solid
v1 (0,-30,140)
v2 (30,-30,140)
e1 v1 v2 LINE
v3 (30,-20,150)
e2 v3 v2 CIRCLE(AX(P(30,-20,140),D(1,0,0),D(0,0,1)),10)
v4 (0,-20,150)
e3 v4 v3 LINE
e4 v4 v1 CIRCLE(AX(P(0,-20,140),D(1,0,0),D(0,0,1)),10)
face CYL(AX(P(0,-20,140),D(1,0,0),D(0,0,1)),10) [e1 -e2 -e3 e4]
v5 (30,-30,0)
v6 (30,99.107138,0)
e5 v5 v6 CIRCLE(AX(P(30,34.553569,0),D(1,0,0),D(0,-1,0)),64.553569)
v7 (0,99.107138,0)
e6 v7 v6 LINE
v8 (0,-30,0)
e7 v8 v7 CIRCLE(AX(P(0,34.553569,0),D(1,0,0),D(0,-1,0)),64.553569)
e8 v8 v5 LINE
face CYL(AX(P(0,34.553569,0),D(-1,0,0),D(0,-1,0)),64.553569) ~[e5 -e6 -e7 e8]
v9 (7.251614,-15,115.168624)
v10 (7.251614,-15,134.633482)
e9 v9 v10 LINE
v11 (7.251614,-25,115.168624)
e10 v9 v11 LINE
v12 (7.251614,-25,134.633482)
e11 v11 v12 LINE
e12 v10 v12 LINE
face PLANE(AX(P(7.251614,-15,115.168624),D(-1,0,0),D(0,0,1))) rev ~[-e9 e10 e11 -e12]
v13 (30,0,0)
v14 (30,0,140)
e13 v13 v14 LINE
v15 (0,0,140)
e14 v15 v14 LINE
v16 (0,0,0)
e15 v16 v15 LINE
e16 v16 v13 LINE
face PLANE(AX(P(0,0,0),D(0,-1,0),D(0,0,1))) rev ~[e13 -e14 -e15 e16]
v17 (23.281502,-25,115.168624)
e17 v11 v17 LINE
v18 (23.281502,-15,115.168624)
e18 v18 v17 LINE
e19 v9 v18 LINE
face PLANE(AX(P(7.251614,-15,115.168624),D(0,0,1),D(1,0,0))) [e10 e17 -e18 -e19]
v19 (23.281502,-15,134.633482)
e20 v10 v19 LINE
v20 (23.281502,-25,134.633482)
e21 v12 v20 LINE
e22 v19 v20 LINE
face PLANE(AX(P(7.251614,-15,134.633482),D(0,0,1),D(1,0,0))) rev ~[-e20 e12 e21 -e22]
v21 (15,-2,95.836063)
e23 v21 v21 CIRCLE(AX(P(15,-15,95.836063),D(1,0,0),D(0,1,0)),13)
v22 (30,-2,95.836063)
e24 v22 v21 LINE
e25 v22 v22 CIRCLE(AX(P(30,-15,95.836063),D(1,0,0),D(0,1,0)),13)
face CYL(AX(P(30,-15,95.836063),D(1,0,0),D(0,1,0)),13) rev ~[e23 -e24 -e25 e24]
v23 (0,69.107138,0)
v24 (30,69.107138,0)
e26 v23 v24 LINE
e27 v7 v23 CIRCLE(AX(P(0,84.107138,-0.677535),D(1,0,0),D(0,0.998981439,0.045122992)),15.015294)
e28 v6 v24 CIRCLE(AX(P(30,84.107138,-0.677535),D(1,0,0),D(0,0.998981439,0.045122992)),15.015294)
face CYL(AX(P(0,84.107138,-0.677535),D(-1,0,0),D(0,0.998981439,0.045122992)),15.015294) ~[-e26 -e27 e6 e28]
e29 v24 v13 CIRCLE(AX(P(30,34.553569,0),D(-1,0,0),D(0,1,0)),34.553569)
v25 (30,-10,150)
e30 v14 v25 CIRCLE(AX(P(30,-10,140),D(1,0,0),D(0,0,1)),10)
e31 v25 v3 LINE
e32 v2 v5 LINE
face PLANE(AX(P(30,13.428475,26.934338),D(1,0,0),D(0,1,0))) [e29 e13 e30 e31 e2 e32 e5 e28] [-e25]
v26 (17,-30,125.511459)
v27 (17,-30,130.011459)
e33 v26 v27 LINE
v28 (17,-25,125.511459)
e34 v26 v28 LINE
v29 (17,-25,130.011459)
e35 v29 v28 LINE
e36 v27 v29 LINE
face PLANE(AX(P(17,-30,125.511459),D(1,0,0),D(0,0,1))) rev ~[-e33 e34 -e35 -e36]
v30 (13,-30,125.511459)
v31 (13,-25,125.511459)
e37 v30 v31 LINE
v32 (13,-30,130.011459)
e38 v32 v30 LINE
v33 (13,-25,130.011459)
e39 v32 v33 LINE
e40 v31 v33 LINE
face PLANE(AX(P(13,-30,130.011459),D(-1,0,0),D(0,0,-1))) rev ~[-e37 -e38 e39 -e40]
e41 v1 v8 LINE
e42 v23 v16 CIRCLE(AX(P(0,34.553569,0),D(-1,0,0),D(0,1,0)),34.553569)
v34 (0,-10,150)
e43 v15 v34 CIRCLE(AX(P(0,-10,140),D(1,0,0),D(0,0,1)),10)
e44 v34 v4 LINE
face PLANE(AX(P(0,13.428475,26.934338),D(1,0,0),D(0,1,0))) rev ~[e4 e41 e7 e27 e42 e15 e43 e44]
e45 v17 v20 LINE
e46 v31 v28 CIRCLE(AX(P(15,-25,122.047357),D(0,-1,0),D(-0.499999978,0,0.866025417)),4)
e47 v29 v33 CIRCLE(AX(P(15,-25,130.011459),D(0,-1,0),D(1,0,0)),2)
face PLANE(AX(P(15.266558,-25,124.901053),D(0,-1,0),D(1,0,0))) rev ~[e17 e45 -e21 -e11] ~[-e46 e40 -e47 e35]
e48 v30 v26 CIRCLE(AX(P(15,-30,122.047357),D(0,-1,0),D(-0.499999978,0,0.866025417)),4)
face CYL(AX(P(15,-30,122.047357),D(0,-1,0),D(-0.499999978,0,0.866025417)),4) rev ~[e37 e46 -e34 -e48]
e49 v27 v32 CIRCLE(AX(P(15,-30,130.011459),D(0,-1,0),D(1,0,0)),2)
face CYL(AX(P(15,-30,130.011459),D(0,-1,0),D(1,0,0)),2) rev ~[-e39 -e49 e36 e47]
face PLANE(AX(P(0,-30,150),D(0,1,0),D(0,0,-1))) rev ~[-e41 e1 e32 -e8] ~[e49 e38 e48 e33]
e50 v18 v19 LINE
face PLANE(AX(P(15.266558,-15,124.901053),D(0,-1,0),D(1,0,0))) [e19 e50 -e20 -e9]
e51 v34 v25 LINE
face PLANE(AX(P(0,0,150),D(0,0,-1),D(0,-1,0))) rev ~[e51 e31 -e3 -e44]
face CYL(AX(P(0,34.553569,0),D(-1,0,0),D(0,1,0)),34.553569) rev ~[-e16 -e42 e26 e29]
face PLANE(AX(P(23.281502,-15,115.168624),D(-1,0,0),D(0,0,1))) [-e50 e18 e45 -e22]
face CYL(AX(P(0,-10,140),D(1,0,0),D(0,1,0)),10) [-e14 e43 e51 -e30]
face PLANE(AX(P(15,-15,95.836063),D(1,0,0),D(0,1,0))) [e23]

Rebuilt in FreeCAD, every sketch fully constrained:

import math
import FreeCAD as App
import Part
import Sketcher
from FreeCAD import Vector
Q = App.Units.Quantity


def edges_at(feature, points):
    """Names of the edges that pass closest to the given points."""
    edges = feature.Shape.Edges
    near = lambda p: min(range(len(edges)), key=lambda i: edges[i].distToShape(Part.Vertex(*p))[0])
    return sorted({f"Edge{near(p) + 1}" for p in points})

doc = App.newDocument("Part")
body = doc.addObject("PartDesign::Body", "Body")

sketch1 = body.newObject("Sketcher::SketchObject", "Sketch")
sketch1.AttachmentSupport = (doc.getObject("YZ_Plane"), [""])
sketch1.MapMode = "FlatFace"
sketch1.addGeometry([
    Part.ArcOfCircle(Part.Circle(Vector(35, 0, 0), Vector(0, 0, 1), 35), math.radians(180), math.radians(360)),
    Part.LineSegment(Vector(0, 0, 0), Vector(0, 150, 0)),
    Part.LineSegment(Vector(0, 150, 0), Vector(-30, 150, 0)),
    Part.LineSegment(Vector(-30, 150, 0), Vector(-30, 0, 0)),
    Part.ArcOfCircle(Part.Circle(Vector(35, 0, 0), Vector(0, 0, 1), 65), math.radians(180), math.radians(360)),
    Part.ArcOfCircle(Part.Circle(Vector(84, -1, 0), Vector(0, 0, 1), 15), math.radians(3), math.radians(177)),
], False)
sketch1.addConstraint([
    Sketcher.Constraint("Tangent", 0, 1, 1, 1),
    Sketcher.Constraint("Coincident", 1, 2, 2, 1),
    Sketcher.Constraint("Coincident", 2, 2, 3, 1),
    Sketcher.Constraint("Tangent", 3, 2, 4, 1),
    Sketcher.Constraint("Coincident", 4, 2, 5, 1),
    Sketcher.Constraint("Coincident", 5, 2, 0, 2),
    Sketcher.Constraint("Vertical", 1),
    Sketcher.Constraint("Horizontal", 2),
    Sketcher.Constraint("Vertical", 3),
    Sketcher.Constraint("Coincident", 0, 1, -1, 1),
    Sketcher.Constraint("Coincident", 4, 3, 0, 3),
    Sketcher.Constraint("PointOnObject", 4, 2, -1),
    Sketcher.Constraint("PointOnObject", 5, 2, -1),
    Sketcher.Constraint("DistanceX", 2, 2, 2, 1, Q("30 mm")),
    Sketcher.Constraint("DistanceY", 1, 1, 1, 2, Q("150 mm")),
    Sketcher.Constraint("Radius", 0, Q("34.553569 mm")),
    Sketcher.Constraint("Radius", 5, Q("15.015294 mm")),
])
pad1 = body.newObject("PartDesign::Pad", "Pad")
pad1.Profile = sketch1
pad1.Length = 30

sketch2 = body.newObject("Sketcher::SketchObject", "Sketch001")
sketch2.AttachmentSupport = (doc.getObject("YZ_Plane"), [""])
sketch2.MapMode = "FlatFace"
sketch2.AttachmentOffset = App.Placement(Vector(0, 0, 30), App.Rotation())
sketch2.addGeometry(Part.Circle(Vector(-15, 96, 0), Vector(0, 0, 1), 13), False)
sketch2.addConstraint([
    Sketcher.Constraint("Diameter", 0, Q("26 mm")),
    Sketcher.Constraint("DistanceX", 0, 3, -1, 1, Q("15 mm")),
    Sketcher.Constraint("DistanceY", -1, 1, 0, 3, Q("95.836063 mm")),
])
pocket1 = body.newObject("PartDesign::Pocket", "Pocket")
pocket1.Profile = sketch2
pocket1.Length = 15

sketch3 = body.newObject("Sketcher::SketchObject", "Sketch002")
sketch3.AttachmentSupport = (doc.getObject("XZ_Plane"), [""])
sketch3.MapMode = "FlatFace"
sketch3.AttachmentOffset = App.Placement(Vector(0, 0, 30), App.Rotation())
sketch3.addGeometry([
    Part.LineSegment(Vector(13, 130, 0), Vector(13, 125.5, 0)),
    Part.ArcOfCircle(Part.Circle(Vector(15, 122, 0), Vector(0, 0, 1), 4), math.radians(120), math.radians(420)),
    Part.LineSegment(Vector(17, 125.5, 0), Vector(17, 130, 0)),
    Part.ArcOfCircle(Part.Circle(Vector(15, 130, 0), Vector(0, 0, 1), 2), math.radians(0), math.radians(180)),
], False)
sketch3.addConstraint([
    Sketcher.Constraint("Coincident", 0, 2, 1, 1),
    Sketcher.Constraint("Coincident", 1, 2, 2, 1),
    Sketcher.Constraint("Tangent", 2, 2, 3, 1),
    Sketcher.Constraint("Tangent", 3, 2, 0, 1),
    Sketcher.Constraint("Vertical", 0),
    Sketcher.Constraint("Vertical", 2),
    Sketcher.Constraint("Horizontal", 0, 2, 1, 2),
    Sketcher.Constraint("Radius", 1, Q("4 mm")),
    Sketcher.Constraint("Radius", 3, Q("2 mm")),
    Sketcher.Constraint("DistanceY", 0, 2, 0, 1, Q("4.5 mm")),
    Sketcher.Constraint("DistanceX", -1, 1, 1, 3, Q("15 mm")),
    Sketcher.Constraint("DistanceY", -1, 1, 3, 3, Q("130.011459 mm")),
])
pocket2 = body.newObject("PartDesign::Pocket", "Pocket001")
pocket2.Profile = sketch3
pocket2.Length = 15

sketch4 = body.newObject("Sketcher::SketchObject", "Sketch003")
sketch4.AttachmentSupport = (doc.getObject("XZ_Plane"), [""])
sketch4.MapMode = "FlatFace"
sketch4.AttachmentOffset = App.Placement(Vector(0, 0, 15), App.Rotation())
sketch4.addGeometry([
    Part.LineSegment(Vector(7, 135, 0), Vector(7, 115, 0)),
    Part.LineSegment(Vector(7, 115, 0), Vector(23, 115, 0)),
    Part.LineSegment(Vector(23, 115, 0), Vector(23, 135, 0)),
    Part.LineSegment(Vector(23, 135, 0), Vector(7, 135, 0)),
], False)
sketch4.addConstraint([
    Sketcher.Constraint("Coincident", 0, 2, 1, 1),
    Sketcher.Constraint("Coincident", 1, 2, 2, 1),
    Sketcher.Constraint("Coincident", 2, 2, 3, 1),
    Sketcher.Constraint("Coincident", 3, 2, 0, 1),
    Sketcher.Constraint("Vertical", 0),
    Sketcher.Constraint("Horizontal", 1),
    Sketcher.Constraint("Vertical", 2),
    Sketcher.Constraint("Horizontal", 3),
    Sketcher.Constraint("DistanceX", -1, 1, 1, 2, Q("23.281502 mm")),
    Sketcher.Constraint("DistanceX", 1, 1, 1, 2, Q("16.029888 mm")),
    Sketcher.Constraint("DistanceY", 0, 2, 0, 1, Q("19.464858 mm")),
    Sketcher.Constraint("DistanceY", -1, 1, 2, 2, Q("134.633482 mm")),
])
pocket3 = body.newObject("PartDesign::Pocket", "Pocket002")
pocket3.Profile = sketch4
pocket3.Length = 10
pocket3.Reversed = True
doc.recompute()

fillet = body.newObject("PartDesign::Fillet", "Fillet")
fillet.Base = (pocket3, edges_at(pocket3, [(15, 0, 150), (15, -30, 150)]))
fillet.Radius = 10

doc.recompute()
